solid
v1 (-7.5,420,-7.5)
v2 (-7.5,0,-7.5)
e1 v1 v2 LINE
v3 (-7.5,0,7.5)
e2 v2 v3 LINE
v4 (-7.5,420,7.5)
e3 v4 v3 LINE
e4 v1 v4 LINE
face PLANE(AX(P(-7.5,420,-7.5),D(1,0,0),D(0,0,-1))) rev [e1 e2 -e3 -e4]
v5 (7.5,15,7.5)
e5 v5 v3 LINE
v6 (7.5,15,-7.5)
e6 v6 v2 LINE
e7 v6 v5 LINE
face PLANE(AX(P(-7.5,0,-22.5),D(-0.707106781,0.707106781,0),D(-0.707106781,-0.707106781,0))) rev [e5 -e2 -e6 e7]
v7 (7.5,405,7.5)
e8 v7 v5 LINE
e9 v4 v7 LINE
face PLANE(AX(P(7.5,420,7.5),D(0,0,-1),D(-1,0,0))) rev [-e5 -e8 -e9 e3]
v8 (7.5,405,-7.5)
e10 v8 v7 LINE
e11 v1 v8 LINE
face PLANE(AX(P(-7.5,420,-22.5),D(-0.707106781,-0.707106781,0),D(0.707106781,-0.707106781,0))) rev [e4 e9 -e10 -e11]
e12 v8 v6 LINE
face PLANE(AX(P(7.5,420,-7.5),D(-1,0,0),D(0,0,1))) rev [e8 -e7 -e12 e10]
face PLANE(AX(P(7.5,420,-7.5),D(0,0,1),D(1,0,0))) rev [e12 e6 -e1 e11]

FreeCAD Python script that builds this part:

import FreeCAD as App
import Part
import Sketcher

doc = App.newDocument("Part")
body = doc.addObject("PartDesign::Body", "Body")

# Sketch on XZ plane
sketch1 = body.newObject("Sketcher::SketchObject", "Sketch")
sketch1.AttachmentSupport = (doc.getObject("XZ_Plane"), [""])
sketch1.MapMode = "FlatFace"
sketch1.addGeometry(Part.LineSegment(App.Vector(-7.5, -7.5, 0), App.Vector(-7.5, 7.5, 0)), False)
sketch1.addGeometry(Part.LineSegment(App.Vector(-7.5, 7.5, 0), App.Vector(7.5, 7.5, 0)), False)
sketch1.addGeometry(Part.LineSegment(App.Vector(7.5, 7.5, 0), App.Vector(7.5, -7.5, 0)), False)
sketch1.addGeometry(Part.LineSegment(App.Vector(7.5, -7.5, 0), App.Vector(-7.5, -7.5, 0)), False)
sketch1.addConstraint(Sketcher.Constraint("Coincident", 0, 2, 1, 1))
sketch1.addConstraint(Sketcher.Constraint("Coincident", 1, 2, 2, 1))
sketch1.addConstraint(Sketcher.Constraint("Coincident", 2, 2, 3, 1))
sketch1.addConstraint(Sketcher.Constraint("Coincident", 3, 2, 0, 1))
sketch1.addConstraint(Sketcher.Constraint("Vertical", 0))
sketch1.addConstraint(Sketcher.Constraint("Horizontal", 1))
sketch1.addConstraint(Sketcher.Constraint("Vertical", 2))
sketch1.addConstraint(Sketcher.Constraint("Horizontal", 3))
sketch1.addConstraint(Sketcher.Constraint("Symmetric", 0, 2, 2, 2, -1, 1))
sketch1.addConstraint(Sketcher.Constraint("Equal", 3, 0))
sketch1.addConstraint(Sketcher.Constraint("DistanceX", 1, 1, 1, 2, 15.0))
pad1 = body.newObject("PartDesign::Pad", "Pad")
pad1.Profile = sketch1
pad1.Length = 420
pad1.Reversed = True

# Sketch on XY plane
sketch2 = body.newObject("Sketcher::SketchObject", "Sketch001")
sketch2.AttachmentSupport = (doc.getObject("XY_Plane"), [""])
sketch2.MapMode = "FlatFace"
sketch2.AttachmentOffset = App.Placement(App.Vector(0, 0, 7.5), App.Rotation())
sketch2.addGeometry(Part.LineSegment(App.Vector(-7.5, 420, 0), App.Vector(7.5, 405, 0)), False)
sketch2.addGeometry(Part.LineSegment(App.Vector(7.5, 405, 0), App.Vector(7.5, 420, 0)), False)
sketch2.addGeometry(Part.LineSegment(App.Vector(7.5, 420, 0), App.Vector(-7.5, 420, 0)), False)
sketch2.addGeometry(Part.LineSegment(App.Vector(7.5, 15, 0), App.Vector(-7.5, 0, 0)), False)
sketch2.addGeometry(Part.LineSegment(App.Vector(-7.5, 0, 0), App.Vector(7.5, 0, 0)), False)
sketch2.addGeometry(Part.LineSegment(App.Vector(7.5, 0, 0), App.Vector(7.5, 15, 0)), False)
sketch2.addConstraint(Sketcher.Constraint("Coincident", 0, 2, 1, 1))
sketch2.addConstraint(Sketcher.Constraint("Coincident", 1, 2, 2, 1))
sketch2.addConstraint(Sketcher.Constraint("Coincident", 2, 2, 0, 1))
sketch2.addConstraint(Sketcher.Constraint("Coincident", 3, 2, 4, 1))
sketch2.addConstraint(Sketcher.Constraint("Coincident", 4, 2, 5, 1))
sketch2.addConstraint(Sketcher.Constraint("Coincident", 5, 2, 3, 1))
sketch2.addConstraint(Sketcher.Constraint("Vertical", 1))
sketch2.addConstraint(Sketcher.Constraint("Horizontal", 2))
sketch2.addConstraint(Sketcher.Constraint("Horizontal", 4))
sketch2.addConstraint(Sketcher.Constraint("Vertical", 5))
sketch2.addConstraint(Sketcher.Constraint("Symmetric", 3, 2, 4, 2, -1, 1))
sketch2.addConstraint(Sketcher.Constraint("Perpendicular", 0, 3))
sketch2.addConstraint(Sketcher.Constraint("Vertical", 2, 2, 3, 2))
sketch2.addConstraint(Sketcher.Constraint("Vertical", 1, 2, 4, 2))
sketch2.addConstraint(Sketcher.Constraint("Equal", 4, 1))
sketch2.addConstraint(Sketcher.Constraint("DistanceX", 2, 2, 2, 1, 15.0))
sketch2.addConstraint(Sketcher.Constraint("DistanceY", -1, 1, 0, 2, 405.0))
pocket1 = body.newObject("PartDesign::Pocket", "Pocket")
pocket1.Profile = sketch2
pocket1.Length = 30

doc.recompute()
